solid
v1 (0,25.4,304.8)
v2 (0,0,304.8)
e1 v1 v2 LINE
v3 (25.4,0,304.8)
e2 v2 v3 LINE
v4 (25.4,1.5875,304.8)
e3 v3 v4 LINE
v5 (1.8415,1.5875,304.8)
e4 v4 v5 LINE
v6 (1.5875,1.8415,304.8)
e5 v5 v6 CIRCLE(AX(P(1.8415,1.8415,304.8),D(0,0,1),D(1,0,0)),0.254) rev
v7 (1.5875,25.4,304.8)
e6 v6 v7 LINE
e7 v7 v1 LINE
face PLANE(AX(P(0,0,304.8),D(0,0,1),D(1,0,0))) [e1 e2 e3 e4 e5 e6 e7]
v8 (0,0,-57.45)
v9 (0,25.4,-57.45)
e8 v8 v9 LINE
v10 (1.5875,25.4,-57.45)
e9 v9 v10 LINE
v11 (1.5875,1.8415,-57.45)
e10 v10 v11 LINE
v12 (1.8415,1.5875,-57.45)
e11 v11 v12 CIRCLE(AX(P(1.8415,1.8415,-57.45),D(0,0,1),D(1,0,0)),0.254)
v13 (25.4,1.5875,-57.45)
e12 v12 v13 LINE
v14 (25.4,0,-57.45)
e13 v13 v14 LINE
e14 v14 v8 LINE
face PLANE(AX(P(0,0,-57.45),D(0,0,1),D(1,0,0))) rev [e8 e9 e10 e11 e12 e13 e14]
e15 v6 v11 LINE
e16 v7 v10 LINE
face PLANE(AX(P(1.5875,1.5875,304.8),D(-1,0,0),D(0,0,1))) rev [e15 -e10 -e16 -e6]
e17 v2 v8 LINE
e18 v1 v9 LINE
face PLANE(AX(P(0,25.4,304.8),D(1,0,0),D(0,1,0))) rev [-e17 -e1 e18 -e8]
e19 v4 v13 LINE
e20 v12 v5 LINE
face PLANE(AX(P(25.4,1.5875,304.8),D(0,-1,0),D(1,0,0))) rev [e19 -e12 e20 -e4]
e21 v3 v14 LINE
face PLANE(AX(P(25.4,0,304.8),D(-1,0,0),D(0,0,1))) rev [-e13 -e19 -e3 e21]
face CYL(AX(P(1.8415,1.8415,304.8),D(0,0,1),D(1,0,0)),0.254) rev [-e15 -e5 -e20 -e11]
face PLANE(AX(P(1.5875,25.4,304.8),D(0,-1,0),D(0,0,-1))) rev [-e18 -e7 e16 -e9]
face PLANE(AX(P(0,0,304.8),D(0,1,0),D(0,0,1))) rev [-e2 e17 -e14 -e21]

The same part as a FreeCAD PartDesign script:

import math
import FreeCAD as App
import Part
import Sketcher

V = App.Vector
Q = App.Units.Quantity


def edges_at(feature, points):
    """Names of the edges that pass closest to the given points."""
    edges = feature.Shape.Edges
    near = lambda p: min(range(len(edges)), key=lambda i: edges[i].distToShape(Part.Vertex(*p))[0])
    return sorted({f"Edge{near(p) + 1}" for p in points})

doc = App.newDocument("Part")
body = doc.addObject("PartDesign::Body", "Body")

# Sketch on XY plane
sketch1 = doc.addObject("Sketcher::SketchObject", "Sketch")
body.addObject(sketch1)
sketch1.AttachmentSupport = (doc.XY_Plane, [""])
sketch1.MapMode = "FlatFace"
sketch1.addGeometry(Part.LineSegment(V(1.6, 25.4, 0), V(0, 25.4, 0)), False)
sketch1.addGeometry(Part.LineSegment(V(0, 25.4, 0), V(0, 0, 0)), False)
sketch1.addGeometry(Part.LineSegment(V(0, 0, 0), V(25.4, 0, 0)), False)
sketch1.addGeometry(Part.LineSegment(V(25.4, 0, 0), V(25.4, 1.6, 0)), False)
sketch1.addGeometry(Part.LineSegment(V(25.4, 1.6, 0), V(1.6, 1.6, 0)), False)
sketch1.addGeometry(Part.LineSegment(V(1.6, 1.6, 0), V(1.6, 25.4, 0)), False)
sketch1.addConstraint(Sketcher.Constraint("Coincident", 0, 2, 1, 1))
sketch1.addConstraint(Sketcher.Constraint("Coincident", 1, 2, 2, 1))
sketch1.addConstraint(Sketcher.Constraint("Coincident", 2, 2, 3, 1))
sketch1.addConstraint(Sketcher.Constraint("Coincident", 3, 2, 4, 1))
sketch1.addConstraint(Sketcher.Constraint("Coincident", 4, 2, 5, 1))
sketch1.addConstraint(Sketcher.Constraint("Coincident", 5, 2, 0, 1))
sketch1.addConstraint(Sketcher.Constraint("Horizontal", 0))
sketch1.addConstraint(Sketcher.Constraint("Vertical", 1))
sketch1.addConstraint(Sketcher.Constraint("Horizontal", 2))
sketch1.addConstraint(Sketcher.Constraint("Vertical", 3))
sketch1.addConstraint(Sketcher.Constraint("Horizontal", 4))
sketch1.addConstraint(Sketcher.Constraint("Vertical", 5))
sketch1.addConstraint(Sketcher.Constraint("Coincident", 1, 2, -1, 1))
sketch1.addConstraint(Sketcher.Constraint("Equal", 2, 1))
sketch1.addConstraint(Sketcher.Constraint("Equal", 0, 3))
sketch1.addConstraint(Sketcher.Constraint("DistanceX", 2, 1, 2, 2, Q("1 in")))
sketch1.addConstraint(Sketcher.Constraint("DistanceX", 0, 2, 0, 1, Q("0.0625 in")))
pad1 = doc.addObject("PartDesign::Pad", "Pad")
body.addObject(pad1)
pad1.Profile = sketch1
pad1.Length = Q("24 in")
pad1.Midplane = True
doc.recompute()

fillet = doc.addObject("PartDesign::Fillet", "Fillet")
body.addObject(fillet)
fillet.Base = (pad1, edges_at(pad1, [(1.587, 1.587, 0)]))
fillet.Radius = Q("0.01 in")

# Sketch on XY plane
sketch2 = doc.addObject("Sketcher::SketchObject", "Sketch001")
body.addObject(sketch2)
sketch2.AttachmentSupport = (doc.XY_Plane, [""])
sketch2.MapMode = "FlatFace"
sketch2.AttachmentOffset = App.Placement(V(0, 0, -12 * 25.4), App.Rotation())
sketch2.addGeometry(Part.LineSegment(V(1.59, 25.4, 0), V(1.59, 1.84, 0)), False)
sketch2.addGeometry(Part.ArcOfCircle(Part.Circle(V(1.84, 1.84, 0), V(0, 0, 1), 0.25), math.radians(-180), math.radians(-90)), False)
sketch2.addGeometry(Part.LineSegment(V(1.84, 1.59, 0), V(25.4, 1.59, 0)), False)
sketch2.addGeometry(Part.LineSegment(V(25.4, 1.59, 0), V(25.4, 0, 0)), False)
sketch2.addGeometry(Part.LineSegment(V(25.4, 0, 0), V(0, 0, 0)), False)
sketch2.addGeometry(Part.LineSegment(V(0, 0, 0), V(0, 25.4, 0)), False)
sketch2.addGeometry(Part.LineSegment(V(0, 25.4, 0), V(1.59, 25.4, 0)), False)
sketch2.addConstraint(Sketcher.Constraint("Tangent", 0, 2, 1, 1))
sketch2.addConstraint(Sketcher.Constraint("Tangent", 1, 2, 2, 1))
sketch2.addConstraint(Sketcher.Constraint("Coincident", 2, 2, 3, 1))
sketch2.addConstraint(Sketcher.Constraint("Coincident", 3, 2, 4, 1))
sketch2.addConstraint(Sketcher.Constraint("Coincident", 4, 2, 5, 1))
sketch2.addConstraint(Sketcher.Constraint("Coincident", 5, 2, 6, 1))
sketch2.addConstraint(Sketcher.Constraint("Coincident", 6, 2, 0, 1))
sketch2.addConstraint(Sketcher.Constraint("Vertical", 0))
sketch2.addConstraint(Sketcher.Constraint("Horizontal", 2))
sketch2.addConstraint(Sketcher.Constraint("Vertical", 3))
sketch2.addConstraint(Sketcher.Constraint("Horizontal", 4))
sketch2.addConstraint(Sketcher.Constraint("Vertical", 5))
sketch2.addConstraint(Sketcher.Constraint("Horizontal", 6))
sketch2.addConstraint(Sketcher.Constraint("Coincident", 4, 2, -1, 1))
sketch2.addConstraint(Sketcher.Constraint("Equal", 2, 0))
sketch2.addConstraint(Sketcher.Constraint("Equal", 6, 3))
sketch2.addConstraint(Sketcher.Constraint("DistanceX", 4, 2, 4, 1, Q("1 in")))
sketch2.addConstraint(Sketcher.Constraint("Radius", 1, Q("0.01 in")))
sketch2.addConstraint(Sketcher.Constraint("DistanceX", 6, 1, 6, 2, Q("0.0625 in")))
pocket1 = doc.addObject("PartDesign::Pocket", "Pocket")
body.addObject(pocket1)
pocket1.Profile = sketch2
pocket1.Length = 247.35
pocket1.Reversed = True

doc.recompute()
